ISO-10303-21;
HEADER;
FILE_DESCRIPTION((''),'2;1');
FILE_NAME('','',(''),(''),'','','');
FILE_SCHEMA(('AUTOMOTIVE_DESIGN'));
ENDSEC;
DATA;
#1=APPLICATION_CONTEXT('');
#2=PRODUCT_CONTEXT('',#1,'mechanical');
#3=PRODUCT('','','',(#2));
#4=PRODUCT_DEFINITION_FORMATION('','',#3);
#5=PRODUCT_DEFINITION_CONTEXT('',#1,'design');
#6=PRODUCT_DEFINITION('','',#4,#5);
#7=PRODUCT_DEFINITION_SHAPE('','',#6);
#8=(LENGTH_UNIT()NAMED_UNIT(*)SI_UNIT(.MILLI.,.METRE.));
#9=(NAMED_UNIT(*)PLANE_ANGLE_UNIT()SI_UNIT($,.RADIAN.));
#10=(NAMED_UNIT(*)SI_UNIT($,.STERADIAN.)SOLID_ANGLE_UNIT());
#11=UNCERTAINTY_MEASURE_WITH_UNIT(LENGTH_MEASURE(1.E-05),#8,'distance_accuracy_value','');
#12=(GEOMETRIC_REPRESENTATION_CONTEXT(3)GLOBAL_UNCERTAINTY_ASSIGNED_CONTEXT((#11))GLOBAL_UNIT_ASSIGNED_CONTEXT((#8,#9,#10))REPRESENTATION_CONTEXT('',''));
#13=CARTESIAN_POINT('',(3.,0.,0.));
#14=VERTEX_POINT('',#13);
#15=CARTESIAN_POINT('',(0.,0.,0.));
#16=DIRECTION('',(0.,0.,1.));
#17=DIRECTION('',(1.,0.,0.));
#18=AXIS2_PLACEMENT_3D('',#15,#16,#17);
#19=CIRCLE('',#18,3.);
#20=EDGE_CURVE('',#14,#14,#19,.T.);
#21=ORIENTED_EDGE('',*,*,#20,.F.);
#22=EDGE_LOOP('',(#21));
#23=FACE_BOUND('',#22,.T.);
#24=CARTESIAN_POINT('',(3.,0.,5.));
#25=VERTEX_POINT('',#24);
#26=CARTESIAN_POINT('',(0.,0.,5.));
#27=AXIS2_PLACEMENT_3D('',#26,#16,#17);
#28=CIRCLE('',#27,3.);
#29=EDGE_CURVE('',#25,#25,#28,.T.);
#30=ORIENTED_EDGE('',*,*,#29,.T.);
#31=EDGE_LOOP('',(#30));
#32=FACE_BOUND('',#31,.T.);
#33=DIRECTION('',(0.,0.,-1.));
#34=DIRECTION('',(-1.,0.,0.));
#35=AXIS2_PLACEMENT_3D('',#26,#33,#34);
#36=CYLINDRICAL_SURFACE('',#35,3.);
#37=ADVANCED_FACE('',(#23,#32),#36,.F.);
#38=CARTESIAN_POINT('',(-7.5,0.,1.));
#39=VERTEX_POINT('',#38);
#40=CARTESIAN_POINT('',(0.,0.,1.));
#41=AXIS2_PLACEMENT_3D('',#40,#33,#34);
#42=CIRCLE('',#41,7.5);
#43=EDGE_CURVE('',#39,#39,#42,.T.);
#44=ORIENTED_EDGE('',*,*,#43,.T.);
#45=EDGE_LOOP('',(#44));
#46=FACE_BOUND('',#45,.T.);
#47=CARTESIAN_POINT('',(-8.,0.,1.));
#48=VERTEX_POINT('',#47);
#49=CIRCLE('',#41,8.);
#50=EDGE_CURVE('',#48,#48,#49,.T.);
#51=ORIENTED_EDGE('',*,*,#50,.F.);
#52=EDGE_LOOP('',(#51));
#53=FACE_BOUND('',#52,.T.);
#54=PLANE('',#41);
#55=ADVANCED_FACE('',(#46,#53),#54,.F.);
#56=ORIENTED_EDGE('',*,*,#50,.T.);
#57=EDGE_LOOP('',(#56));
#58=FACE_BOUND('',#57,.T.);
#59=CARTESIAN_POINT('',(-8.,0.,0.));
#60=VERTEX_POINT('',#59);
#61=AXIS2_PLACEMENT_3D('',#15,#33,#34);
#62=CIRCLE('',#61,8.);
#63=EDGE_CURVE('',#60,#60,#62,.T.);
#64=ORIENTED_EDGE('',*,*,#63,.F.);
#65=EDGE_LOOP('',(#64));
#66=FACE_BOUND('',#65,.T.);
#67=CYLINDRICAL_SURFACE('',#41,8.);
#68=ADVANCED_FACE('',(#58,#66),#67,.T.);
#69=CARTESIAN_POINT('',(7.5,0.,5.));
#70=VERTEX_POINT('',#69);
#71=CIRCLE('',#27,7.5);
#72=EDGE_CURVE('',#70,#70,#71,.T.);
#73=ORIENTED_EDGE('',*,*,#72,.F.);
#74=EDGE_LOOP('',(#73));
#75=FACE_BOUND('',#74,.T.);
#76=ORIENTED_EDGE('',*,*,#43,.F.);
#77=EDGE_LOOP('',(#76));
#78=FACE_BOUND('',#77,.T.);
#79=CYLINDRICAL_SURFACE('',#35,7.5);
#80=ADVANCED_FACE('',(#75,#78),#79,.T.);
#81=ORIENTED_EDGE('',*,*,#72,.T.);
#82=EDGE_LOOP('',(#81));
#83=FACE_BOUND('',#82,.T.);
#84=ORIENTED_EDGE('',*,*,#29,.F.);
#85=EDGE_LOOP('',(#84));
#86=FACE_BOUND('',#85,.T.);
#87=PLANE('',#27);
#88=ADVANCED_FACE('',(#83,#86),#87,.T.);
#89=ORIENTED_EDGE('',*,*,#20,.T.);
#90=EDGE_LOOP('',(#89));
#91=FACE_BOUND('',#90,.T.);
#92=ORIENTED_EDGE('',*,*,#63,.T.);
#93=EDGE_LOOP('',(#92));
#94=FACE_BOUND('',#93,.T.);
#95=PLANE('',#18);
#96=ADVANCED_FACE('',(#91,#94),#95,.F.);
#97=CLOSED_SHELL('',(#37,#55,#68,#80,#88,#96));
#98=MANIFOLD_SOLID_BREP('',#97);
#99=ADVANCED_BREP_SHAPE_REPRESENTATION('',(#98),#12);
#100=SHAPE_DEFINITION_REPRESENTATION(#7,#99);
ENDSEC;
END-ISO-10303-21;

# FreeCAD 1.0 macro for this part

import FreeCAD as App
import Part
import Sketcher
from FreeCAD import Vector

doc = App.newDocument("Part")
body = doc.addObject("PartDesign::Body", "Body")

# Sketch on XY plane
sketch1 = doc.addObject("Sketcher::SketchObject", "Sketch")
body.addObject(sketch1)
sketch1.AttachmentSupport = (doc.XY_Plane, [""])
sketch1.MapMode = "FlatFace"
sketch1.addGeometry([
    Part.Circle(Vector(0, 0, 0), Vector(0, 0, 1), 7.5),
    Part.Circle(Vector(0, 0, 0), Vector(0, 0, 1), 3),
], False)
sketch1.addConstraint([
    Sketcher.Constraint("Coincident", 0, 3, -1, 1),
    Sketcher.Constraint("Coincident", 1, 3, -1, 1),
    Sketcher.Constraint("Diameter", 0, 15.0),
    Sketcher.Constraint("Diameter", 1, 6.0),
])
pad1 = doc.addObject("PartDesign::Pad", "Pad")
body.addObject(pad1)
pad1.Profile = sketch1
pad1.Length = 5

# Sketch on XY plane
sketch2 = doc.addObject("Sketcher::SketchObject", "Sketch001")
body.addObject(sketch2)
sketch2.AttachmentSupport = (doc.XY_Plane, [""])
sketch2.MapMode = "FlatFace"
sketch2.addGeometry([
    Part.Circle(Vector(0, 0, 0), Vector(0, 0, 1), 8),
    Part.Circle(Vector(0, 0, 0), Vector(0, 0, 1), 8),
], False)
sketch2.addConstraint([
    Sketcher.Constraint("Coincident", 0, 3, -1, 1),
    Sketcher.Constraint("Coincident", 1, 3, -1, 1),
    Sketcher.Constraint("Diameter", 0, 16.0),
    Sketcher.Constraint("Diameter", 1, 15.0),
])
pad2 = doc.addObject("PartDesign::Pad", "Pad001")
body.addObject(pad2)
pad2.Profile = sketch2
pad2.Length = 1

doc.recompute()
